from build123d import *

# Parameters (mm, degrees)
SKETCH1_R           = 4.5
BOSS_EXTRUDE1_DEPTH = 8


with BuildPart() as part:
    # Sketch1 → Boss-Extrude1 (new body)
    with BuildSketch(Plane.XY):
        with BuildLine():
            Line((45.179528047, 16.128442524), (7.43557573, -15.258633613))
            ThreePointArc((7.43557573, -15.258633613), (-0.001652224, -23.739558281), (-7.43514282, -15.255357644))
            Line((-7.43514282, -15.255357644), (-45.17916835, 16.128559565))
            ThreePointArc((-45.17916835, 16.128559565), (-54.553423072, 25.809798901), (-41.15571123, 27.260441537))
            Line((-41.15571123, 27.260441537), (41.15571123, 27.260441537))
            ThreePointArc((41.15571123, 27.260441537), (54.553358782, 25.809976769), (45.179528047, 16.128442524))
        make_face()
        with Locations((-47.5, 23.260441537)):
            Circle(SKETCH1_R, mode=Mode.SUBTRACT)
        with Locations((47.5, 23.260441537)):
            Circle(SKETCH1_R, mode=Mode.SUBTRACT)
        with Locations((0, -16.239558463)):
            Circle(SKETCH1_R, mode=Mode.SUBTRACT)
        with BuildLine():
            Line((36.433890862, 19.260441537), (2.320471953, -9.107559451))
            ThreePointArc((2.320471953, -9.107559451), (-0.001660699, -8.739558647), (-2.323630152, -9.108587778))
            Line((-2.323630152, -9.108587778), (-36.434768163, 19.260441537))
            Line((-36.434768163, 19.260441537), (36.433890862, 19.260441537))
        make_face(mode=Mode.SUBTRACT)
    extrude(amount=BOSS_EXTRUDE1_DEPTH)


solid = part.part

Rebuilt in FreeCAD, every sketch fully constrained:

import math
import FreeCAD as App
import Part
import Sketcher

doc = App.newDocument("Part")
body = doc.addObject("PartDesign::Body", "Body")

# Sketch on XY plane
sketch1 = body.newObject("Sketcher::SketchObject", "Sketch")
sketch1.AttachmentSupport = (doc.getObject("XY_Plane"), [""])
sketch1.MapMode = "FlatFace"
sketch1.addGeometry(Part.LineSegment(App.Vector(7.435576, -15.258634, 0), App.Vector(45.179528, 16.128443, 0)), False)
sketch1.addGeometry(Part.ArcOfCircle(Part.Circle(App.Vector(47.5, 23.260442, 0), App.Vector(0, 0, 1), 7.5), math.radians(-108.02285), math.radians(147.769047)), False)
sketch1.addGeometry(Part.LineSegment(App.Vector(41.155711, 27.260442, 0), App.Vector(-41.155711, 27.260442, 0)), False)
sketch1.addGeometry(Part.ArcOfCircle(Part.Circle(App.Vector(-47.5, 23.260442, 0), App.Vector(0, 0, 1), 7.5), math.radians(32.230953), math.radians(288.02574)), False)
sketch1.addGeometry(Part.LineSegment(App.Vector(-45.179168, 16.12856, 0), App.Vector(-7.435143, -15.255358, 0)), False)
sketch1.addGeometry(Part.ArcOfCircle(Part.Circle(App.Vector(0, -16.239558, 0), App.Vector(0, 0, 1), 7.5), math.radians(172.459511), math.radians(367.515245)), False)
sketch1.addGeometry(Part.Circle(App.Vector(0, -16.239558, 0), App.Vector(0, 0, 1), 4.5), False)
sketch1.addGeometry(Part.Circle(App.Vector(47.5, 23.260442, 0), App.Vector(0, 0, 1), 4.5), False)
sketch1.addGeometry(Part.LineSegment(App.Vector(36.433891, 19.260442, 0), App.Vector(2.320472, -9.107559, 0)), False)
sketch1.addGeometry(Part.ArcOfCircle(Part.Circle(App.Vector(0, -16.239558, 0), App.Vector(0, 0, 1), 7.5), math.radians(71.97715), math.radians(108.048224)), False)
sketch1.addGeometry(Part.LineSegment(App.Vector(-2.32363, -9.108588, 0), App.Vector(-36.434768, 19.260442, 0)), False)
sketch1.addGeometry(Part.LineSegment(App.Vector(-36.434768, 19.260442, 0), App.Vector(36.433891, 19.260442, 0)), False)
sketch1.addGeometry(Part.Circle(App.Vector(-47.5, 23.260442, 0), App.Vector(0, 0, 1), 4.5), False)
sketch1.addConstraint(Sketcher.Constraint("Coincident", 0, 2, 1, 1))
sketch1.addConstraint(Sketcher.Constraint("Coincident", 1, 2, 2, 1))
sketch1.addConstraint(Sketcher.Constraint("Coincident", 2, 2, 3, 1))
sketch1.addConstraint(Sketcher.Constraint("Coincident", 3, 2, 4, 1))
sketch1.addConstraint(Sketcher.Constraint("Coincident", 4, 2, 5, 1))
sketch1.addConstraint(Sketcher.Constraint("Coincident", 5, 2, 0, 1))
sketch1.addConstraint(Sketcher.Constraint("Coincident", 8, 2, 9, 1))
sketch1.addConstraint(Sketcher.Constraint("Coincident", 9, 2, 10, 1))
sketch1.addConstraint(Sketcher.Constraint("Coincident", 10, 2, 11, 1))
sketch1.addConstraint(Sketcher.Constraint("Coincident", 11, 2, 8, 1))
sketch1.addConstraint(Sketcher.Constraint("Horizontal", 2))
sketch1.addConstraint(Sketcher.Constraint("Horizontal", 11))
sketch1.addConstraint(Sketcher.Constraint("Coincident", 6, 3, 5, 3))
sketch1.addConstraint(Sketcher.Constraint("Coincident", 7, 3, 1, 3))
sketch1.addConstraint(Sketcher.Constraint("Coincident", 9, 3, 5, 3))
sketch1.addConstraint(Sketcher.Constraint("Coincident", 12, 3, 3, 3))
sketch1.addConstraint(Sketcher.Constraint("Equal", 1, 3))
sketch1.addConstraint(Sketcher.Constraint("Equal", 3, 5))
sketch1.addConstraint(Sketcher.Constraint("Equal", 6, 7))
sketch1.addConstraint(Sketcher.Constraint("Equal", 5, 9))
sketch1.addConstraint(Sketcher.Constraint("Equal", 7, 12))
sketch1.addConstraint(Sketcher.Constraint("Symmetric", 1, 3, 3, 3, -2))
sketch1.addConstraint(Sketcher.Constraint("PointOnObject", 5, 3, -2))
sketch1.addConstraint(Sketcher.Constraint("Parallel", 0, 8))
sketch1.addConstraint(Sketcher.Constraint("Diameter", 6, 9.0))
sketch1.addConstraint(Sketcher.Constraint("Radius", 1, 7.5))
sketch1.addConstraint(Sketcher.Constraint("DistanceX", 3, 3, 1, 3, 95.0))
sketch1.addConstraint(Sketcher.Constraint("DistanceY", 1, 3, 1, 2, 4.0))
sketch1.addConstraint(Sketcher.Constraint("DistanceY", 10, 2, 2, 2, 8.0))
sketch1.addConstraint(Sketcher.Constraint("DistanceY", 5, 3, 3, 3, 39.5))
sketch1.addConstraint(Sketcher.Constraint("DistanceY", 0, 2, 1, 3, 7.131999))
sketch1.addConstraint(Sketcher.Constraint("DistanceY", 9, 3, 8, 2, 7.131999))
sketch1.addConstraint(Sketcher.Constraint("DistanceX", 11, 1, 11, 2, 72.868659))
sketch1.addConstraint(Sketcher.Constraint("DistanceY", 9, 3, 4, 2, 0.984201))
sketch1.addConstraint(Sketcher.Constraint("DistanceX", 3, 2, 10, 2, 8.7444))
sketch1.addConstraint(Sketcher.Constraint("Distance", 0, 49.08925))
sketch1.addConstraint(Sketcher.Constraint("DistanceY", -1, 1, 1, 3, 23.260442))
sketch1.addConstraint(Sketcher.Constraint("DistanceX", 9, 2, -1, 1, 2.32363))
pad1 = body.newObject("PartDesign::Pad", "Pad")
pad1.Profile = sketch1
pad1.Length = 8

doc.recompute()
